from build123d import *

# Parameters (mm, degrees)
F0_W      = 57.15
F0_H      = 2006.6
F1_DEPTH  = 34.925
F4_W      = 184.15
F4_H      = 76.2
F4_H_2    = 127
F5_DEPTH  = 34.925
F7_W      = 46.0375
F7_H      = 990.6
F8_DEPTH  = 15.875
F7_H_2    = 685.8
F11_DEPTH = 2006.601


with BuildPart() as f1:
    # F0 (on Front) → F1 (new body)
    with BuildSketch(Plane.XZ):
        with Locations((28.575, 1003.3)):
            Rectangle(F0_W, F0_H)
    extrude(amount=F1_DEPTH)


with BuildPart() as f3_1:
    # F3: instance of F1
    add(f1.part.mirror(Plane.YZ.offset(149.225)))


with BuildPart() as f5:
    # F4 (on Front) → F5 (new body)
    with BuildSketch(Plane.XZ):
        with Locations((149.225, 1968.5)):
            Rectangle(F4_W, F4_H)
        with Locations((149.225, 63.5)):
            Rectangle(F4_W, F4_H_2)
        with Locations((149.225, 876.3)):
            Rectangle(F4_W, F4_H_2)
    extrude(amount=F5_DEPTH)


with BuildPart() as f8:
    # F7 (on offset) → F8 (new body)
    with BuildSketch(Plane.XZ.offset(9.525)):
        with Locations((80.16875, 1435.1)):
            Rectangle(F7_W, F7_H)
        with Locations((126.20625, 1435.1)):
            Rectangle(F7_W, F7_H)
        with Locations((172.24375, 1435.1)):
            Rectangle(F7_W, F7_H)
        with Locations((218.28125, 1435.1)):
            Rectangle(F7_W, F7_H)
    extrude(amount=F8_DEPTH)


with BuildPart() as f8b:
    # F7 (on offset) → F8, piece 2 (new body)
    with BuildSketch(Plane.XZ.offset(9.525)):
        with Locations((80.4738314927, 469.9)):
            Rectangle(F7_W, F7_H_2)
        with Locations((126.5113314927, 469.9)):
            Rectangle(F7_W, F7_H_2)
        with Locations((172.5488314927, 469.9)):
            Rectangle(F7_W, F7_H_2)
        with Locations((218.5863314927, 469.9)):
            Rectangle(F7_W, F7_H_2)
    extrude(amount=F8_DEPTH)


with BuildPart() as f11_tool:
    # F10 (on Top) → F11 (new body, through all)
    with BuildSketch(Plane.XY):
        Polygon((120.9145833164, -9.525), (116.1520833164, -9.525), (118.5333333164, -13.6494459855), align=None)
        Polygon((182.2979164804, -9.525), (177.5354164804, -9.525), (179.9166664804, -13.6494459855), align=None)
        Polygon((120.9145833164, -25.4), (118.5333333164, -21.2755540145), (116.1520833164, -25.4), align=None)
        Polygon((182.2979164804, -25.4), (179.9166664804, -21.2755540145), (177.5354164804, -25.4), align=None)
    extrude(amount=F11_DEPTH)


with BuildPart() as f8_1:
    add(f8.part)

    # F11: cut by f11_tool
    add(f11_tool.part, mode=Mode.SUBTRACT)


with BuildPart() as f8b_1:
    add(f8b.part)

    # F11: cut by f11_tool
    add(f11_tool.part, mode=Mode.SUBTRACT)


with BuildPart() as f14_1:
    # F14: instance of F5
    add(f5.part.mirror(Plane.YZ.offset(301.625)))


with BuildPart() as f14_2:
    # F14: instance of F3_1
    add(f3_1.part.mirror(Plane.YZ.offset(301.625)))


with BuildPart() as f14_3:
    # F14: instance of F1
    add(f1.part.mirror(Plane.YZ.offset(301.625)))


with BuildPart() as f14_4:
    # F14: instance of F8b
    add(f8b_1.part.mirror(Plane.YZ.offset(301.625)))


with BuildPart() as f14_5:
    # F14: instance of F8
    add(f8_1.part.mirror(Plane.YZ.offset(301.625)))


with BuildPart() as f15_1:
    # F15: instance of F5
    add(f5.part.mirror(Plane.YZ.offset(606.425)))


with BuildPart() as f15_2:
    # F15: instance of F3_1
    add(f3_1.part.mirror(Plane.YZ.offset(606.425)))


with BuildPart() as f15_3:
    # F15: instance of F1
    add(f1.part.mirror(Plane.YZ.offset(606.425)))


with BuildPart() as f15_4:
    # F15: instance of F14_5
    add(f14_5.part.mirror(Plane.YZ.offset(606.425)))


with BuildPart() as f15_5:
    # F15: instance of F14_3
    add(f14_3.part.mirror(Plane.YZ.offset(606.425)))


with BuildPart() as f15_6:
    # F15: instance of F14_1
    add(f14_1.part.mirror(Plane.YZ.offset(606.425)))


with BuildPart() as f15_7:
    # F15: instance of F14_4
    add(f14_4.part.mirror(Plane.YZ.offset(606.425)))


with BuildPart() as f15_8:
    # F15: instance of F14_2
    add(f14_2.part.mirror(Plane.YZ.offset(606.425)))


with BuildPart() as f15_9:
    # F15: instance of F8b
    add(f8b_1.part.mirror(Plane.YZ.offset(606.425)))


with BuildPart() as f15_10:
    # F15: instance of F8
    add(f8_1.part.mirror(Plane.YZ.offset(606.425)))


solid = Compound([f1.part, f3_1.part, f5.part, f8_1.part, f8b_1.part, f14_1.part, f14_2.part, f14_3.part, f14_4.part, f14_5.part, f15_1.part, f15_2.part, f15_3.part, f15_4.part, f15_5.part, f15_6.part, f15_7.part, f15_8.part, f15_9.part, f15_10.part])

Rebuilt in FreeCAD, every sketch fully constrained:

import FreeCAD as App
import Part
import Sketcher

V = App.Vector
Q = App.Units.Quantity


def add_polygon(sketch, points):
    """Adds a closed chain of lines whose ends are joined by coincident constraints."""
    first, n = sketch.GeometryCount, len(points)
    for a, b in zip(points, points[1:] + points[:1]):
        sketch.addGeometry(Part.LineSegment(App.Vector(*a, 0), App.Vector(*b, 0)), False)
    for i in range(n):
        sketch.addConstraint(Sketcher.Constraint("Coincident", first + i, 2, first + (i + 1) % n, 1))

doc = App.newDocument("Part")
body = doc.addObject("PartDesign::Body", "Body")

sketch1 = doc.addObject("Sketcher::SketchObject", "Sketch")
body.addObject(sketch1)
sketch1.AttachmentSupport = (doc.XZ_Plane, [""])
sketch1.MapMode = "FlatFace"
add_polygon(sketch1, [(0, 2007), (0, 0), (57, 0), (57, 2007)])
sketch1.addConstraint([
    Sketcher.Constraint("Vertical", 0),
    Sketcher.Constraint("Horizontal", 1),
    Sketcher.Constraint("Vertical", 2),
    Sketcher.Constraint("Horizontal", 3),
    Sketcher.Constraint("Coincident", 0, 2, -1, 1),
    Sketcher.Constraint("DistanceY", 0, 2, 0, 1, Q("79 in")),
    Sketcher.Constraint("DistanceX", 1, 1, 1, 2, Q("2.25 in")),
])
pad1 = doc.addObject("PartDesign::Pad", "Pad")
body.addObject(pad1)
pad1.Profile = sketch1
pad1.Length = Q("1.375 in")
body2 = doc.addObject("PartDesign::Body", "Body001")
doc.recompute()

mirroring = doc.addObject("Part::Mirroring", "Mirroring")
mirroring.Source = body
mirroring.Base = V(149.225, 0, 0)
mirroring.Normal = V(1, 0, 0)
body2.BaseFeature = mirroring
doc.recompute()
body3 = doc.addObject("PartDesign::Body", "Body002")
body3.AllowCompound = True

sketch2 = doc.addObject("Sketcher::SketchObject", "Sketch001")
body3.addObject(sketch2)
sketch2.AttachmentSupport = (doc.getObject("XZ_Plane002"), [""])
sketch2.MapMode = "FlatFace"
add_polygon(sketch2, [(57, 2007), (57, 1930), (241, 1930), (241, 2007)])
add_polygon(sketch2, [(57, 127), (57, 0), (241, 0), (241, 127)])
add_polygon(sketch2, [(57, 940), (57, 813), (241, 813), (241, 940)])
sketch2.addConstraint([
    Sketcher.Constraint("Vertical", 0),
    Sketcher.Constraint("Horizontal", 1),
    Sketcher.Constraint("Vertical", 2),
    Sketcher.Constraint("Horizontal", 3),
    Sketcher.Constraint("Vertical", 4),
    Sketcher.Constraint("Horizontal", 5),
    Sketcher.Constraint("Vertical", 6),
    Sketcher.Constraint("Horizontal", 7),
    Sketcher.Constraint("Vertical", 8),
    Sketcher.Constraint("Horizontal", 9),
    Sketcher.Constraint("Vertical", 10),
    Sketcher.Constraint("Horizontal", 11),
    Sketcher.Constraint("PointOnObject", 4, 2, -1),
    Sketcher.Constraint("Vertical", 3, 2, 4, 2),
    Sketcher.Constraint("Vertical", 2, 2, 5, 2),
    Sketcher.Constraint("Vertical", 7, 2, 8, 2),
    Sketcher.Constraint("Vertical", 6, 2, 9, 2),
    Sketcher.Constraint("Equal", 6, 8),
    Sketcher.Constraint("DistanceY", 0, 2, 0, 1, Q("3 in")),
    Sketcher.Constraint("DistanceY", 4, 2, 4, 1, Q("5 in")),
    Sketcher.Constraint("DistanceY", -1, 1, 0, 2, Q("76 in")),
    Sketcher.Constraint("DistanceY", -1, 1, 8, 2, Q("32 in")),
    Sketcher.Constraint("DistanceX", 1, 1, 1, 2, Q("7.25 in")),
    Sketcher.Constraint("DistanceX", -1, 1, 1, 2, Q("9.5 in")),
])
pad2 = doc.addObject("PartDesign::Pad", "Pad001")
body3.addObject(pad2)
pad2.Profile = sketch2
pad2.Length = Q("1.375 in")
body4 = doc.addObject("PartDesign::Body", "Body003")

sketch3 = doc.addObject("Sketcher::SketchObject", "Sketch002")
body4.addObject(sketch3)
sketch3.AttachmentSupport = (doc.getObject("XZ_Plane003"), [""])
sketch3.MapMode = "FlatFace"
sketch3.AttachmentOffset = App.Placement(V(0, 0, 0.375 * 25.4), App.Rotation())
add_polygon(sketch3, [(57, 1930), (57, 940), (241, 940), (241, 1930)])
sketch3.addConstraint([
    Sketcher.Constraint("Vertical", 0),
    Sketcher.Constraint("Horizontal", 1),
    Sketcher.Constraint("Vertical", 2),
    Sketcher.Constraint("Horizontal", 3),
    Sketcher.Constraint("DistanceY", 0, 2, 0, 1, Q("39 in")),
    Sketcher.Constraint("DistanceY", -1, 1, 0, 2, Q("37 in")),
    Sketcher.Constraint("DistanceX", 1, 1, 1, 2, Q("7.25 in")),
    Sketcher.Constraint("DistanceX", -1, 1, 1, 2, Q("9.5 in")),
])
pad3 = doc.addObject("PartDesign::Pad", "Pad002")
body4.addObject(pad3)
pad3.Profile = sketch3
pad3.Length = Q("0.625 in")
body5 = doc.addObject("PartDesign::Body", "Body004")

sketch4 = doc.addObject("Sketcher::SketchObject", "Sketch003")
body5.addObject(sketch4)
sketch4.AttachmentSupport = (doc.getObject("XZ_Plane004"), [""])
sketch4.MapMode = "FlatFace"
sketch4.AttachmentOffset = App.Placement(V(0, 0, 0.375 * 25.4), App.Rotation())
add_polygon(sketch4, [(57, 813), (57, 127), (242, 127), (242, 813)])
sketch4.addConstraint([
    Sketcher.Constraint("Vertical", 0),
    Sketcher.Constraint("Horizontal", 1),
    Sketcher.Constraint("Vertical", 2),
    Sketcher.Constraint("Horizontal", 3),
    Sketcher.Constraint("DistanceY", 0, 2, 0, 1, Q("27 in")),
    Sketcher.Constraint("DistanceY", -1, 1, 0, 2, Q("5 in")),
    Sketcher.Constraint("DistanceX", 1, 1, 1, 2, Q("7.25 in")),
    Sketcher.Constraint("DistanceX", -1, 1, 0, 2, Q("57.455081 mm")),
])
pad4 = doc.addObject("PartDesign::Pad", "Pad003")
body5.addObject(pad4)
pad4.Profile = sketch4
pad4.Length = Q("0.625 in")
body6 = doc.addObject("PartDesign::Body", "Body005")
body6.AllowCompound = True

sketch5 = doc.addObject("Sketcher::SketchObject", "Sketch004")
body6.addObject(sketch5)
sketch5.AttachmentSupport = (doc.getObject("XY_Plane005"), [""])
sketch5.MapMode = "FlatFace"
add_polygon(sketch5, [(120.9, -9.5), (116.2, -9.5), (118.5, -13.6)])
add_polygon(sketch5, [(182.3, -9.5), (177.5, -9.5), (179.9, -13.6)])
add_polygon(sketch5, [(120.9, -25.4), (118.5, -21.3), (116.2, -25.4)])
add_polygon(sketch5, [(182.3, -25.4), (179.9, -21.3), (177.5, -25.4)])
sketch5.addConstraint([
    Sketcher.Constraint("Horizontal", 0),
    Sketcher.Constraint("Horizontal", 3),
    Sketcher.Constraint("Horizontal", 8),
    Sketcher.Constraint("Horizontal", 11),
    Sketcher.Constraint("Parallel", 1, 4),
    Sketcher.Constraint("Parallel", 2, 5),
    Sketcher.Constraint("Parallel", 4, 6),
    Sketcher.Constraint("Parallel", 5, 7),
    Sketcher.Constraint("Parallel", 6, 9),
    Sketcher.Constraint("Parallel", 7, 10),
    Sketcher.Constraint("Horizontal", 2, 2, 3, 2),
    Sketcher.Constraint("Horizontal", 1, 2, 4, 2),
    Sketcher.Constraint("Horizontal", 6, 2, 9, 2),
    Sketcher.Constraint("Horizontal", 8, 2, 10, 2),
    Sketcher.Constraint("Vertical", 1, 2, 6, 2),
    Sketcher.Constraint("Vertical", 0, 2, 7, 2),
    Sketcher.Constraint("Vertical", 2, 2, 8, 2),
    Sketcher.Constraint("Vertical", 4, 2, 9, 2),
    Sketcher.Constraint("DistanceY", 7, 2, -1, 1, Q("1 in")),
    Sketcher.Constraint("Angle", 1, Q("-60 deg")),
    Sketcher.Constraint("DistanceX", 0, 2, 0, 1, Q("0.1875 in")),
    Sketcher.Constraint("DistanceY", 0, 2, -1, 1, Q("0.375 in")),
    Sketcher.Constraint("DistanceX", -1, 1, 0, 2, Q("116.152083 mm")),
    Sketcher.Constraint("DistanceX", -1, 1, 3, 2, Q("177.535416 mm")),
])
pad5 = doc.addObject("PartDesign::Pad", "Pad004")
body6.addObject(pad5)
pad5.Profile = sketch5
pad5.Length = 2006.601
doc.recompute()

body7 = doc.addObject("PartDesign::Body", "Body006")
body7.BaseFeature = body6
boolean = doc.addObject("PartDesign::Boolean", "Boolean")
body4.addObject(boolean)
boolean.Type = "Cut"
boolean.addObjects([body7])
doc.recompute()

boolean2 = doc.addObject("PartDesign::Boolean", "Boolean001")
body5.addObject(boolean2)
boolean2.Type = "Cut"
boolean2.addObjects([body6])
body8 = doc.addObject("PartDesign::Body", "Body007")
body8.AllowCompound = True
doc.recompute()

mirroring2 = doc.addObject("Part::Mirroring", "Mirroring001")
mirroring2.Source = body3
mirroring2.Base = V(301.625, 0, 0)
mirroring2.Normal = V(1, 0, 0)
body8.BaseFeature = mirroring2
doc.recompute()
body9 = doc.addObject("PartDesign::Body", "Body008")
doc.recompute()

mirroring3 = doc.addObject("Part::Mirroring", "Mirroring002")
mirroring3.Source = body2
mirroring3.Base = V(301.625, 0, 0)
mirroring3.Normal = V(1, 0, 0)
body9.BaseFeature = mirroring3
doc.recompute()
body10 = doc.addObject("PartDesign::Body", "Body009")
doc.recompute()

mirroring4 = doc.addObject("Part::Mirroring", "Mirroring003")
mirroring4.Source = body
mirroring4.Base = V(301.625, 0, 0)
mirroring4.Normal = V(1, 0, 0)
body10.BaseFeature = mirroring4
doc.recompute()
body11 = doc.addObject("PartDesign::Body", "Body010")
doc.recompute()

mirroring5 = doc.addObject("Part::Mirroring", "Mirroring004")
mirroring5.Source = body5
mirroring5.Base = V(301.625, 0, 0)
mirroring5.Normal = V(1, 0, 0)
body11.BaseFeature = mirroring5
doc.recompute()
body12 = doc.addObject("PartDesign::Body", "Body011")
doc.recompute()

mirroring6 = doc.addObject("Part::Mirroring", "Mirroring005")
mirroring6.Source = body4
mirroring6.Base = V(301.625, 0, 0)
mirroring6.Normal = V(1, 0, 0)
body12.BaseFeature = mirroring6
doc.recompute()
body13 = doc.addObject("PartDesign::Body", "Body012")
body13.AllowCompound = True
doc.recompute()

mirroring7 = doc.addObject("Part::Mirroring", "Mirroring006")
mirroring7.Source = body3
mirroring7.Base = V(606.425, 0, 0)
mirroring7.Normal = V(1, 0, 0)
body13.BaseFeature = mirroring7
doc.recompute()
body14 = doc.addObject("PartDesign::Body", "Body013")
doc.recompute()

mirroring8 = doc.addObject("Part::Mirroring", "Mirroring007")
mirroring8.Source = body2
mirroring8.Base = V(606.425, 0, 0)
mirroring8.Normal = V(1, 0, 0)
body14.BaseFeature = mirroring8
doc.recompute()
body15 = doc.addObject("PartDesign::Body", "Body014")
doc.recompute()

mirroring9 = doc.addObject("Part::Mirroring", "Mirroring008")
mirroring9.Source = body
mirroring9.Base = V(606.425, 0, 0)
mirroring9.Normal = V(1, 0, 0)
body15.BaseFeature = mirroring9
doc.recompute()
body16 = doc.addObject("PartDesign::Body", "Body015")
doc.recompute()

mirroring10 = doc.addObject("Part::Mirroring", "Mirroring009")
mirroring10.Source = body12
mirroring10.Base = V(606.425, 0, 0)
mirroring10.Normal = V(1, 0, 0)
body16.BaseFeature = mirroring10
doc.recompute()
body17 = doc.addObject("PartDesign::Body", "Body016")
doc.recompute()

mirroring11 = doc.addObject("Part::Mirroring", "Mirroring010")
mirroring11.Source = body10
mirroring11.Base = V(606.425, 0, 0)
mirroring11.Normal = V(1, 0, 0)
body17.BaseFeature = mirroring11
doc.recompute()
body18 = doc.addObject("PartDesign::Body", "Body017")
body18.AllowCompound = True
doc.recompute()

mirroring12 = doc.addObject("Part::Mirroring", "Mirroring011")
mirroring12.Source = body8
mirroring12.Base = V(606.425, 0, 0)
mirroring12.Normal = V(1, 0, 0)
body18.BaseFeature = mirroring12
doc.recompute()
body19 = doc.addObject("PartDesign::Body", "Body018")
doc.recompute()

mirroring13 = doc.addObject("Part::Mirroring", "Mirroring012")
mirroring13.Source = body11
mirroring13.Base = V(606.425, 0, 0)
mirroring13.Normal = V(1, 0, 0)
body19.BaseFeature = mirroring13
doc.recompute()
body20 = doc.addObject("PartDesign::Body", "Body019")
doc.recompute()

mirroring14 = doc.addObject("Part::Mirroring", "Mirroring013")
mirroring14.Source = body9
mirroring14.Base = V(606.425, 0, 0)
mirroring14.Normal = V(1, 0, 0)
body20.BaseFeature = mirroring14
doc.recompute()
body21 = doc.addObject("PartDesign::Body", "Body020")
doc.recompute()

mirroring15 = doc.addObject("Part::Mirroring", "Mirroring014")
mirroring15.Source = body5
mirroring15.Base = V(606.425, 0, 0)
mirroring15.Normal = V(1, 0, 0)
body21.BaseFeature = mirroring15
doc.recompute()
body22 = doc.addObject("PartDesign::Body", "Body021")
doc.recompute()

mirroring16 = doc.addObject("Part::Mirroring", "Mirroring015")
mirroring16.Source = body4
mirroring16.Base = V(606.425, 0, 0)
mirroring16.Normal = V(1, 0, 0)
body22.BaseFeature = mirroring16
doc.recompute()

doc.recompute()
